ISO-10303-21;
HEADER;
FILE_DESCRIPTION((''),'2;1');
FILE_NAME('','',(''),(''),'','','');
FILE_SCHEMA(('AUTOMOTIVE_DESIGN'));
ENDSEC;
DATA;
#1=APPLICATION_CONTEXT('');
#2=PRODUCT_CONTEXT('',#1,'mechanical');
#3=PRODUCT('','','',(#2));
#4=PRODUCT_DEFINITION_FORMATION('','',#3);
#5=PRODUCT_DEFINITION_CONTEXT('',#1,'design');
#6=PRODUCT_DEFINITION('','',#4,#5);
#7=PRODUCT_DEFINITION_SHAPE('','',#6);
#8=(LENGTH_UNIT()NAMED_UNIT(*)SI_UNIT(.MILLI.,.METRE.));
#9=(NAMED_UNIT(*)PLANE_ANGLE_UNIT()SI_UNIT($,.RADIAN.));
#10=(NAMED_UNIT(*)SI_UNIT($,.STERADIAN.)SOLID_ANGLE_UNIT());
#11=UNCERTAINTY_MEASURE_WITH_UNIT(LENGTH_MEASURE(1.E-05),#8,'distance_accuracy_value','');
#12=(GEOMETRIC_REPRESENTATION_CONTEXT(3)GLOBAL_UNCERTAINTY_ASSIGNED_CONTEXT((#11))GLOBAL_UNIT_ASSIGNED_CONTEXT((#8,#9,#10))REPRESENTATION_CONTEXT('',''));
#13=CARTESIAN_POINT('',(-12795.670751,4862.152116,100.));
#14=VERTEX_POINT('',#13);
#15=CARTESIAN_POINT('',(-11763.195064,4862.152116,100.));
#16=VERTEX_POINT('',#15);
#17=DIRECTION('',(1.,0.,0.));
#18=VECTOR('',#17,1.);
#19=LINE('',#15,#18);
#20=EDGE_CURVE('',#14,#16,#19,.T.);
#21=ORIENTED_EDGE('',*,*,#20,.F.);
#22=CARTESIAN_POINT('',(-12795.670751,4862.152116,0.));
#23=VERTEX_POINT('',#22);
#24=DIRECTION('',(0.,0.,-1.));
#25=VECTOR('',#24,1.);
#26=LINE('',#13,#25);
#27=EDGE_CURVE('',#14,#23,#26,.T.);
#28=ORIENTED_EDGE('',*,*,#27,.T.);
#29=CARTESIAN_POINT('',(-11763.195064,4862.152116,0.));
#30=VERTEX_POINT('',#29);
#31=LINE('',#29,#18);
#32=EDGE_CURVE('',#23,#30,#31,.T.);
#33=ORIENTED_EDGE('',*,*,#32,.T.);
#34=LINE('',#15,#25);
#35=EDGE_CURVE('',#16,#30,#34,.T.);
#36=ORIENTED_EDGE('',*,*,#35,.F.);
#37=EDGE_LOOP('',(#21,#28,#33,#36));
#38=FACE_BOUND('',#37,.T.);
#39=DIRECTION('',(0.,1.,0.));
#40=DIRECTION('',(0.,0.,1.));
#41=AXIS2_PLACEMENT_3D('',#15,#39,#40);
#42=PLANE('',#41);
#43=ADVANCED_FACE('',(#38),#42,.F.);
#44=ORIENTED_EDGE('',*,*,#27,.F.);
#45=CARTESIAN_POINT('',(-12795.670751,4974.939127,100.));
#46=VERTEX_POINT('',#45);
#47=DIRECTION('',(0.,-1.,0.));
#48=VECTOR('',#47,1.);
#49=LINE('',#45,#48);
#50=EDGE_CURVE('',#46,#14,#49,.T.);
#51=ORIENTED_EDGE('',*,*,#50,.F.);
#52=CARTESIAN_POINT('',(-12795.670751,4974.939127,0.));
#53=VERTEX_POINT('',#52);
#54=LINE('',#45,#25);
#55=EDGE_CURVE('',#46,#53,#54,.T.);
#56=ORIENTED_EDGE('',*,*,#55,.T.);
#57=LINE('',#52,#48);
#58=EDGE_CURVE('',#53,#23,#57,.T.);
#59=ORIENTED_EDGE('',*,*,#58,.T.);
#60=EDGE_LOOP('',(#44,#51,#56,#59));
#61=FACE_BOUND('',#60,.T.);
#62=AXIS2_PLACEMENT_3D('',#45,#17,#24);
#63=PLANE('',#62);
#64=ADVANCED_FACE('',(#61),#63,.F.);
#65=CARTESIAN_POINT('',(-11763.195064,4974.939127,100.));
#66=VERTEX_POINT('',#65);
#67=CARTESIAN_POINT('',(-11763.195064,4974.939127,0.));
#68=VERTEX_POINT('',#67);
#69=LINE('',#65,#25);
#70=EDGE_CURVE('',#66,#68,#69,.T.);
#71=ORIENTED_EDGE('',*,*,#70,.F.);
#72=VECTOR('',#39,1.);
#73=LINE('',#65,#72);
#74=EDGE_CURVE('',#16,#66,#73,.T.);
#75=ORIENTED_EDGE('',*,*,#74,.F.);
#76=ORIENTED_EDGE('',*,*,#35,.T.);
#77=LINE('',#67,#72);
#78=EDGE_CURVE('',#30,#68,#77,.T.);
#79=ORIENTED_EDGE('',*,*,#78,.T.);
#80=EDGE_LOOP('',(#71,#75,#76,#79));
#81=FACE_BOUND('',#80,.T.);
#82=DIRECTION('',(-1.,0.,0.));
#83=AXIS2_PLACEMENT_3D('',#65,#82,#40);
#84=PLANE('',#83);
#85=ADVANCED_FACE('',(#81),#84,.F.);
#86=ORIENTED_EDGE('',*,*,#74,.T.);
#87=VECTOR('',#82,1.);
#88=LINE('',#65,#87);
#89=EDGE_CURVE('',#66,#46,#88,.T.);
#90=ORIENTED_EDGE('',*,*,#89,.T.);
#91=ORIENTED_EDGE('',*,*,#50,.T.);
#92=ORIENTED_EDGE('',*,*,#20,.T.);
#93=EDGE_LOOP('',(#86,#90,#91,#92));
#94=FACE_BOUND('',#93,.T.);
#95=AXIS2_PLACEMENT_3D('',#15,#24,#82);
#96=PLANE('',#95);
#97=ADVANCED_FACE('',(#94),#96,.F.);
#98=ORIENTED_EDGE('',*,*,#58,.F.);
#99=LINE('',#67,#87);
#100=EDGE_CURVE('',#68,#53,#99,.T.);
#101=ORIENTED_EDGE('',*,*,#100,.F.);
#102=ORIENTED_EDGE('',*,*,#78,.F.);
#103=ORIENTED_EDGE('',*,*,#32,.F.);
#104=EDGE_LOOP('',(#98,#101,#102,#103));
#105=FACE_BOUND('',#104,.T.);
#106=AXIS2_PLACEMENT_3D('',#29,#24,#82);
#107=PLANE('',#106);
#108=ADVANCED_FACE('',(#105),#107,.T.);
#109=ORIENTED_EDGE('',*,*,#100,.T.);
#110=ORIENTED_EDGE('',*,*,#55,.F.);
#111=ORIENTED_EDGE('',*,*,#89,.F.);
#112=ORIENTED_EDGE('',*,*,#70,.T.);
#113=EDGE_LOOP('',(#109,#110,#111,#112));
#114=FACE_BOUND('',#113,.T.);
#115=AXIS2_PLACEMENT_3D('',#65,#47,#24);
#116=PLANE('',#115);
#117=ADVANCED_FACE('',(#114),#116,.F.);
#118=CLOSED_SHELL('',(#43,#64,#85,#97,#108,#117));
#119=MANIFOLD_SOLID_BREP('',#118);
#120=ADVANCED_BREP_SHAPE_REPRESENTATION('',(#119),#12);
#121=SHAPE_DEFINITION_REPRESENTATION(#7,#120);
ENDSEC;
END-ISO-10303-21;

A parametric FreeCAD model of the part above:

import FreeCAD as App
import Part
import Sketcher

doc = App.newDocument("Part")
body = doc.addObject("PartDesign::Body", "Body")

# Sketch on XY plane
sketch1 = body.newObject("Sketcher::SketchObject", "Sketch")
sketch1.AttachmentSupport = (doc.getObject("XY_Plane"), [""])
sketch1.MapMode = "FlatFace"
sketch1.addGeometry([
    Part.LineSegment(App.Vector(-12795.670751, 4974.939127, 0), App.Vector(-12795.670751, 4862.152116, 0)),
    Part.LineSegment(App.Vector(-12795.670751, 4862.152116, 0), App.Vector(-11763.195064, 4862.152116, 0)),
    Part.LineSegment(App.Vector(-11763.195064, 4862.152116, 0), App.Vector(-11763.195064, 4974.939127, 0)),
    Part.LineSegment(App.Vector(-11763.195064, 4974.939127, 0), App.Vector(-12795.670751, 4974.939127, 0)),
], False)
sketch1.addConstraint([
    Sketcher.Constraint("Coincident", 0, 2, 1, 1),
    Sketcher.Constraint("Coincident", 1, 2, 2, 1),
    Sketcher.Constraint("Coincident", 2, 2, 3, 1),
    Sketcher.Constraint("Coincident", 3, 2, 0, 1),
    Sketcher.Constraint("Vertical", 0),
    Sketcher.Constraint("Horizontal", 1),
    Sketcher.Constraint("Vertical", 2),
    Sketcher.Constraint("Horizontal", 3),
    Sketcher.Constraint("DistanceY", 0, 2, 0, 1, 112.78701),
    Sketcher.Constraint("DistanceX", 1, 1, 1, 2, 1032.475687),
    Sketcher.Constraint("DistanceX", 0, 2, -1, 1, 12795.670751),
    Sketcher.Constraint("DistanceY", -1, 1, 0, 2, 4862.152116),
])
pad1 = body.newObject("PartDesign::Pad", "Pad")
pad1.Profile = sketch1
pad1.Length = 100

doc.recompute()
